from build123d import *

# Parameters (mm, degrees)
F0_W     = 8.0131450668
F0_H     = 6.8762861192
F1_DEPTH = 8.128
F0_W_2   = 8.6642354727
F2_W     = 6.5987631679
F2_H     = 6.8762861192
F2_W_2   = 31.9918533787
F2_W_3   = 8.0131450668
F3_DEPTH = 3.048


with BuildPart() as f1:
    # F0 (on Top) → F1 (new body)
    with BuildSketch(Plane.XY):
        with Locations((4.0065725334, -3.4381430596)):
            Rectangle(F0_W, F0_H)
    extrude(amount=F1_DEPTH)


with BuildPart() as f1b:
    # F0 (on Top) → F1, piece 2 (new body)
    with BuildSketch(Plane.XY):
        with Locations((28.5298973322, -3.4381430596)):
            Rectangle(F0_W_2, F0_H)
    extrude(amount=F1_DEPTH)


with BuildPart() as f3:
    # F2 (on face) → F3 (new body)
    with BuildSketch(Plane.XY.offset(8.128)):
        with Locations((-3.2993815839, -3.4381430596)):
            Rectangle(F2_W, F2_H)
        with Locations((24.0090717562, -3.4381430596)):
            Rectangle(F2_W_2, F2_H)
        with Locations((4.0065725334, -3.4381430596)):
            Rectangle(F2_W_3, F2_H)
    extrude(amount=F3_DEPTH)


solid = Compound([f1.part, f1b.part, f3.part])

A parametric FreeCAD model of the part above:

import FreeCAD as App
import Part
import Sketcher

V = App.Vector
Q = App.Units.Quantity

doc = App.newDocument("Part")
body = doc.addObject("PartDesign::Body", "Body")

# Sketch on XY plane
sketch1 = body.newObject("Sketcher::SketchObject", "Sketch")
sketch1.AttachmentSupport = (doc.getObject("XY_Plane"), [""])
sketch1.MapMode = "FlatFace"
sketch1.addGeometry([
    Part.LineSegment(V(0, 0, 0), V(0, -7, 0)),
    Part.LineSegment(V(0, -7, 0), V(8, -7, 0)),
    Part.LineSegment(V(8, -7, 0), V(8, 0, 0)),
    Part.LineSegment(V(8, 0, 0), V(0, 0, 0)),
], False)
sketch1.addConstraint([
    Sketcher.Constraint("Coincident", 0, 2, 1, 1),
    Sketcher.Constraint("Coincident", 1, 2, 2, 1),
    Sketcher.Constraint("Coincident", 2, 2, 3, 1),
    Sketcher.Constraint("Coincident", 3, 2, 0, 1),
    Sketcher.Constraint("Vertical", 0),
    Sketcher.Constraint("Horizontal", 1),
    Sketcher.Constraint("Vertical", 2),
    Sketcher.Constraint("Horizontal", 3),
    Sketcher.Constraint("Coincident", 3, 2, -1, 1),
    Sketcher.Constraint("DistanceX", 1, 1, 1, 2, 8.013145),
    Sketcher.Constraint("DistanceY", 0, 2, 0, 1, 6.876286),
])
pad1 = body.newObject("PartDesign::Pad", "Pad")
pad1.Profile = sketch1
pad1.Length = Q("0.32 in")
body2 = doc.addObject("PartDesign::Body", "Body001")

# Sketch on XY plane
sketch2 = body2.newObject("Sketcher::SketchObject", "Sketch001")
sketch2.AttachmentSupport = (doc.getObject("XY_Plane001"), [""])
sketch2.MapMode = "FlatFace"
sketch2.addGeometry([
    Part.LineSegment(V(24, 0, 0), V(24, -7, 0)),
    Part.LineSegment(V(24, -7, 0), V(33, -7, 0)),
    Part.LineSegment(V(33, -7, 0), V(33, 0, 0)),
    Part.LineSegment(V(33, 0, 0), V(24, 0, 0)),
], False)
sketch2.addConstraint([
    Sketcher.Constraint("Coincident", 0, 2, 1, 1),
    Sketcher.Constraint("Coincident", 1, 2, 2, 1),
    Sketcher.Constraint("Coincident", 2, 2, 3, 1),
    Sketcher.Constraint("Coincident", 3, 2, 0, 1),
    Sketcher.Constraint("Vertical", 0),
    Sketcher.Constraint("Horizontal", 1),
    Sketcher.Constraint("Vertical", 2),
    Sketcher.Constraint("Horizontal", 3),
    Sketcher.Constraint("PointOnObject", 2, 2, -1),
    Sketcher.Constraint("DistanceX", 1, 1, 1, 2, 8.664235),
    Sketcher.Constraint("DistanceY", 0, 2, 0, 1, 6.876286),
    Sketcher.Constraint("DistanceX", -1, 1, 0, 2, 24.19778),
])
pad2 = body2.newObject("PartDesign::Pad", "Pad001")
pad2.Profile = sketch2
pad2.Length = Q("0.32 in")
body3 = doc.addObject("PartDesign::Body", "Body002")

# Sketch on XY plane
sketch3 = body3.newObject("Sketcher::SketchObject", "Sketch002")
sketch3.AttachmentSupport = (doc.getObject("XY_Plane002"), [""])
sketch3.MapMode = "FlatFace"
sketch3.AttachmentOffset = App.Placement(V(0, 0, 0.32 * 25.4), App.Rotation())
sketch3.addGeometry([
    Part.LineSegment(V(-7, 0, 0), V(-7, -7, 0)),
    Part.LineSegment(V(-7, -7, 0), V(40, -7, 0)),
    Part.LineSegment(V(40, -7, 0), V(40, 0, 0)),
    Part.LineSegment(V(40, 0, 0), V(-7, 0, 0)),
], False)
sketch3.addConstraint([
    Sketcher.Constraint("Coincident", 0, 2, 1, 1),
    Sketcher.Constraint("Coincident", 1, 2, 2, 1),
    Sketcher.Constraint("Coincident", 2, 2, 3, 1),
    Sketcher.Constraint("Coincident", 3, 2, 0, 1),
    Sketcher.Constraint("Vertical", 0),
    Sketcher.Constraint("Horizontal", 1),
    Sketcher.Constraint("Vertical", 2),
    Sketcher.Constraint("Horizontal", 3),
    Sketcher.Constraint("PointOnObject", 2, 2, -1),
    Sketcher.Constraint("DistanceX", -1, 1, 1, 2, Q("1.5749999 in")),
    Sketcher.Constraint("DistanceX", 1, 1, 1, 2, 46.603762),
    Sketcher.Constraint("DistanceY", 0, 2, 0, 1, 6.876286),
])
pad3 = body3.newObject("PartDesign::Pad", "Pad002")
pad3.Profile = sketch3
pad3.Length = Q("0.12 in")

doc.recompute()
